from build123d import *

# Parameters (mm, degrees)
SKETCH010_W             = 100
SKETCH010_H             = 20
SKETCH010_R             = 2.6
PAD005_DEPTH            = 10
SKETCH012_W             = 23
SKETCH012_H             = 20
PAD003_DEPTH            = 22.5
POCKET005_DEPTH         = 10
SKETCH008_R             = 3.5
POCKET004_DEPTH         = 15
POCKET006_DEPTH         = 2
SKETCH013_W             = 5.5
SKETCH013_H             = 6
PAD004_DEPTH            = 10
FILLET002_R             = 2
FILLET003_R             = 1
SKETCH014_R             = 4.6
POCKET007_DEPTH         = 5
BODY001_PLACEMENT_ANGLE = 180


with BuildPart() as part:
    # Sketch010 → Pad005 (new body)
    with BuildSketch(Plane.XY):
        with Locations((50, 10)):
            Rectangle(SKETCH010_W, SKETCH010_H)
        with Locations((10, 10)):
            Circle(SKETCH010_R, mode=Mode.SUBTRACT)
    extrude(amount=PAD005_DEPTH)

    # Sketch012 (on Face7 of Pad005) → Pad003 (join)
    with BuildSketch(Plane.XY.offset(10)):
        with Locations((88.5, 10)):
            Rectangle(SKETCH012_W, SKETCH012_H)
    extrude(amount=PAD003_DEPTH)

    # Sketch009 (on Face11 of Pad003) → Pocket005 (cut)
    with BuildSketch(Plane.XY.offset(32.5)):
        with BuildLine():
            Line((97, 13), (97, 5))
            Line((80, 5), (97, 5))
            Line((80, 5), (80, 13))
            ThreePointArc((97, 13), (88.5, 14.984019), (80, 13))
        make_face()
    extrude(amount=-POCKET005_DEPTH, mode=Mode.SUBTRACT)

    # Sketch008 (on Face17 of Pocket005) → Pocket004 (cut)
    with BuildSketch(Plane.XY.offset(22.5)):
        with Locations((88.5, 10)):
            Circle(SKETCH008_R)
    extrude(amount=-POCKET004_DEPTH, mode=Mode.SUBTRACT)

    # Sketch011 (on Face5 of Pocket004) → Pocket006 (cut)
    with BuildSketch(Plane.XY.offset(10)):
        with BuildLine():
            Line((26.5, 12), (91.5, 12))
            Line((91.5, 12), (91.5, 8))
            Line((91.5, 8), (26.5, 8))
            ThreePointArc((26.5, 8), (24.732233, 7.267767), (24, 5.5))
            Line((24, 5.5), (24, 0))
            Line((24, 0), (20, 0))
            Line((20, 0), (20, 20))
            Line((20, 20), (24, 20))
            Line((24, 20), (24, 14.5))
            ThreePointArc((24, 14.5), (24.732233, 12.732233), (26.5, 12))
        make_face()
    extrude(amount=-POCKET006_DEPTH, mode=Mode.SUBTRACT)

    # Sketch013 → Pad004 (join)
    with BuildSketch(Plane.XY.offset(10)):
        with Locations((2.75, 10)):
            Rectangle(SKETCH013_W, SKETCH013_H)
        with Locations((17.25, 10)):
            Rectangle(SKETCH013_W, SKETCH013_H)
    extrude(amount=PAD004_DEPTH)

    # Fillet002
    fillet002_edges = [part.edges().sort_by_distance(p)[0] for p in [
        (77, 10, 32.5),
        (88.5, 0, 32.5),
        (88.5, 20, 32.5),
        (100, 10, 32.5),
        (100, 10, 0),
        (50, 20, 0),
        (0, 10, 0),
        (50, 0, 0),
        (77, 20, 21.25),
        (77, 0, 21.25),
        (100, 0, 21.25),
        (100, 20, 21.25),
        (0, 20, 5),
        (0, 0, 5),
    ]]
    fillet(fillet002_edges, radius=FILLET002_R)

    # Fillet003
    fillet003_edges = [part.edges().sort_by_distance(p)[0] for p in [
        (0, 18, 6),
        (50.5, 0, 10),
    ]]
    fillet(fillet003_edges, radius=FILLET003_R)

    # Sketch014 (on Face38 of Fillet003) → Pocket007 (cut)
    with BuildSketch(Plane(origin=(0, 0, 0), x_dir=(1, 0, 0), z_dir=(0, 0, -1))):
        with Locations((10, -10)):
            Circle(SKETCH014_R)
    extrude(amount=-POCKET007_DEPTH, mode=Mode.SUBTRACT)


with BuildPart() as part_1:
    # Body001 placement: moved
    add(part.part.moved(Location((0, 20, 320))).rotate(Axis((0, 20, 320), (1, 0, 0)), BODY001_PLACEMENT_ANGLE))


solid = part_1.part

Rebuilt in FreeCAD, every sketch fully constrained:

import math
import FreeCAD as App
import Part
import Sketcher
from FreeCAD import Vector


def edges_at(feature, points):
    """Names of the edges that pass closest to the given points."""
    edges = feature.Shape.Edges
    near = lambda p: min(range(len(edges)), key=lambda i: edges[i].distToShape(Part.Vertex(*p))[0])
    return sorted({f"Edge{near(p) + 1}" for p in points})

doc = App.newDocument("Part")
params = doc.addObject("Spreadsheet::Sheet", "Params")
for row, (alias, value) in enumerate([
    ("sketch1_diameter", "5.2 mm"),
    ("sketch1_width", "100 mm"),
    ("sketch1_height", "20 mm"),
    ("pad1_length", "10 mm"),
    ("sketch2_width", "23 mm"),
    ("sketch2_height", "20 mm"),
    ("pad2_length", "22.5 mm"),
    ("sketch3_radius", "19.2 mm"),
    ("sketch3_width", "17 mm"),
    ("sketch3_height", "8 mm"),
    ("pocket1_length", "10 mm"),
    ("sketch4_diameter", "7 mm"),
    ("pocket2_length", "15 mm"),
    ("sketch5_radius", "2.5 mm"),
    ("sketch5_width", "65 mm"),
    ("sketch5_width2", "4 mm"),
    ("sketch5_height", "20 mm"),
    ("pocket3_length", "2 mm"),
    ("sketch6_height", "6 mm"),
    ("sketch6_width", "5.5 mm"),
    ("pad3_length", "10 mm"),
    ("fillet_radius", "2 mm"),
    ("fillet2_radius", "1 mm"),
    ("sketch7_diameter", "9.2 mm"),
    ("pocket4_length", "5 mm"),
], start=1):
    params.set(f"A{row}", alias)
    params.set(f"B{row}", "=" + value)
    params.setAlias(f"B{row}", alias)

body = doc.addObject("PartDesign::Body", "Body")

# Sketch on XY plane
sketch1 = body.newObject("Sketcher::SketchObject", "Sketch")
sketch1.AttachmentSupport = (doc.getObject("XY_Plane"), [""])
sketch1.MapMode = "FlatFace"
sketch1.addGeometry([
    Part.LineSegment(Vector(0, 20, 0), Vector(0, 0, 0)),  # 0
    Part.LineSegment(Vector(0, 0, 0), Vector(100, 0, 0)),  # 1
    Part.LineSegment(Vector(100, 0, 0), Vector(100, 20, 0)),  # 2
    Part.LineSegment(Vector(100, 20, 0), Vector(0, 20, 0)),  # 3
    Part.Circle(Vector(10, 10, 0), Vector(0, 0, 1), 2.6),  # 4
], False)
sketch1.addConstraint([
    Sketcher.Constraint("Coincident", 0, 2, 1, 1),
    Sketcher.Constraint("Coincident", 1, 2, 2, 1),
    Sketcher.Constraint("Coincident", 2, 2, 3, 1),
    Sketcher.Constraint("Coincident", 3, 2, 0, 1),
    Sketcher.Constraint("Vertical", 0),
    Sketcher.Constraint("Horizontal", 1),
    Sketcher.Constraint("Vertical", 2),
    Sketcher.Constraint("Horizontal", 3),
    Sketcher.Constraint("Coincident", 0, 2, -1, 1),
    Sketcher.Constraint("Diameter", 4, 5.2),
    Sketcher.Constraint("DistanceX", 1, 1, 1, 2, 100.0),
    Sketcher.Constraint("DistanceY", 0, 2, 0, 1, 20.0),
    Sketcher.Constraint("DistanceX", -1, 1, 4, 3, 10.0),
    Sketcher.Constraint("DistanceY", -1, 1, 4, 3, 10.0),
])
sketch1.setExpression("Constraints[9]", "Params.sketch1_diameter")
sketch1.setExpression("Constraints[10]", "Params.sketch1_width")
sketch1.setExpression("Constraints[11]", "Params.sketch1_height")
pad1 = body.newObject("PartDesign::Pad", "Pad")
pad1.Profile = sketch1
pad1.setExpression("Length", "Params.pad1_length")

# Sketch on XY plane
sketch2 = body.newObject("Sketcher::SketchObject", "Sketch001")
sketch2.AttachmentSupport = (doc.getObject("XY_Plane"), [""])
sketch2.MapMode = "FlatFace"
sketch2.AttachmentOffset = App.Placement(Vector(0, 0, 10), App.Rotation())
sketch2.addGeometry([
    Part.LineSegment(Vector(77, 20, 0), Vector(77, 0, 0)),
    Part.LineSegment(Vector(77, 0, 0), Vector(100, 0, 0)),
    Part.LineSegment(Vector(100, 0, 0), Vector(100, 20, 0)),
    Part.LineSegment(Vector(100, 20, 0), Vector(77, 20, 0)),
], False)
sketch2.addConstraint([
    Sketcher.Constraint("Coincident", 0, 2, 1, 1),
    Sketcher.Constraint("Coincident", 1, 2, 2, 1),
    Sketcher.Constraint("Coincident", 2, 2, 3, 1),
    Sketcher.Constraint("Coincident", 3, 2, 0, 1),
    Sketcher.Constraint("Vertical", 0),
    Sketcher.Constraint("Horizontal", 1),
    Sketcher.Constraint("Vertical", 2),
    Sketcher.Constraint("Horizontal", 3),
    Sketcher.Constraint("PointOnObject", 0, 2, -1),
    Sketcher.Constraint("DistanceX", 1, 1, 1, 2, 23.0),
    Sketcher.Constraint("DistanceY", 0, 2, 0, 1, 20.0),
    Sketcher.Constraint("DistanceX", -1, 1, 0, 2, 77.0),
])
sketch2.setExpression("Constraints[9]", "Params.sketch2_width")
sketch2.setExpression("Constraints[10]", "Params.sketch2_height")
pad2 = body.newObject("PartDesign::Pad", "Pad001")
pad2.Profile = sketch2
pad2.setExpression("Length", "Params.pad2_length")

# Sketch on XY plane
sketch3 = body.newObject("Sketcher::SketchObject", "Sketch002")
sketch3.AttachmentSupport = (doc.getObject("XY_Plane"), [""])
sketch3.MapMode = "FlatFace"
sketch3.AttachmentOffset = App.Placement(Vector(0, 0, 32.5), App.Rotation())
sketch3.addGeometry([
    Part.LineSegment(Vector(97, 5, 0), Vector(97, 13, 0)),
    Part.ArcOfCircle(Part.Circle(Vector(88, -4, 0), Vector(0, 0, 1), 19), math.radians(64), math.radians(116)),
    Part.LineSegment(Vector(80, 13, 0), Vector(80, 5, 0)),
    Part.LineSegment(Vector(80, 5, 0), Vector(97, 5, 0)),
], False)
sketch3.addConstraint([
    Sketcher.Constraint("Coincident", 0, 2, 1, 1),
    Sketcher.Constraint("Coincident", 1, 2, 2, 1),
    Sketcher.Constraint("Coincident", 2, 2, 3, 1),
    Sketcher.Constraint("Coincident", 3, 2, 0, 1),
    Sketcher.Constraint("Vertical", 0),
    Sketcher.Constraint("Vertical", 2),
    Sketcher.Constraint("Horizontal", 3),
    Sketcher.Constraint("Horizontal", 0, 2, 1, 2),
    Sketcher.Constraint("Radius", 1, 19.2),
    Sketcher.Constraint("DistanceX", 3, 1, 3, 2, 17.0),
    Sketcher.Constraint("DistanceY", 0, 1, 0, 2, 8.0),
    Sketcher.Constraint("DistanceX", -1, 1, 0, 2, 97.0),
    Sketcher.Constraint("DistanceY", -1, 1, 0, 2, 13.0),
])
sketch3.setExpression("Constraints[8]", "Params.sketch3_radius")
sketch3.setExpression("Constraints[9]", "Params.sketch3_width")
sketch3.setExpression("Constraints[10]", "Params.sketch3_height")
pocket1 = body.newObject("PartDesign::Pocket", "Pocket")
pocket1.Profile = sketch3
pocket1.setExpression("Length", "Params.pocket1_length")

# Sketch on XY plane
sketch4 = body.newObject("Sketcher::SketchObject", "Sketch003")
sketch4.AttachmentSupport = (doc.getObject("XY_Plane"), [""])
sketch4.MapMode = "FlatFace"
sketch4.AttachmentOffset = App.Placement(Vector(0, 0, 22.5), App.Rotation())
sketch4.addGeometry(Part.Circle(Vector(88.5, 10, 0), Vector(0, 0, 1), 3.5), False)
sketch4.addConstraint([
    Sketcher.Constraint("Diameter", 0, 7.0),
    Sketcher.Constraint("DistanceY", -1, 1, 0, 3, 10.0),
    Sketcher.Constraint("DistanceX", -1, 1, 0, 3, 88.5),
])
sketch4.setExpression("Constraints[0]", "Params.sketch4_diameter")
pocket2 = body.newObject("PartDesign::Pocket", "Pocket001")
pocket2.Profile = sketch4
pocket2.setExpression("Length", "Params.pocket2_length")

# Sketch on XY plane
sketch5 = body.newObject("Sketcher::SketchObject", "Sketch004")
sketch5.AttachmentSupport = (doc.getObject("XY_Plane"), [""])
sketch5.MapMode = "FlatFace"
sketch5.AttachmentOffset = App.Placement(Vector(0, 0, 10), App.Rotation())
sketch5.addGeometry([
    Part.LineSegment(Vector(91.5, 12, 0), Vector(26.5, 12, 0)),  # 0
    Part.ArcOfCircle(Part.Circle(Vector(26.5, 14.5, 0), Vector(0, 0, 1), 2.5), math.radians(180), math.radians(270)),  # 1
    Part.LineSegment(Vector(24, 14.5, 0), Vector(24, 20, 0)),  # 2
    Part.LineSegment(Vector(24, 20, 0), Vector(20, 20, 0)),  # 3
    Part.LineSegment(Vector(20, 20, 0), Vector(20, 0, 0)),  # 4
    Part.LineSegment(Vector(20, 0, 0), Vector(24, 0, 0)),  # 5
    Part.LineSegment(Vector(24, 0, 0), Vector(24, 5.5, 0)),  # 6
    Part.ArcOfCircle(Part.Circle(Vector(26.5, 5.5, 0), Vector(0, 0, 1), 2.5), math.radians(90), math.radians(180)),  # 7
    Part.LineSegment(Vector(26.5, 8, 0), Vector(91.5, 8, 0)),  # 8
    Part.LineSegment(Vector(91.5, 8, 0), Vector(91.5, 12, 0)),  # 9
], False)
sketch5.addConstraint([
    Sketcher.Constraint("Tangent", 0, 2, 1, 2),
    Sketcher.Constraint("Tangent", 1, 1, 2, 1),
    Sketcher.Constraint("Coincident", 2, 2, 3, 1),
    Sketcher.Constraint("Coincident", 3, 2, 4, 1),
    Sketcher.Constraint("Coincident", 4, 2, 5, 1),
    Sketcher.Constraint("Coincident", 5, 2, 6, 1),
    Sketcher.Constraint("Tangent", 6, 2, 7, 2),
    Sketcher.Constraint("Tangent", 7, 1, 8, 1),
    Sketcher.Constraint("Coincident", 8, 2, 9, 1),
    Sketcher.Constraint("Coincident", 9, 2, 0, 1),
    Sketcher.Constraint("Horizontal", 0),
    Sketcher.Constraint("Vertical", 2),
    Sketcher.Constraint("Horizontal", 3),
    Sketcher.Constraint("Vertical", 4),
    Sketcher.Constraint("Horizontal", 5),
    Sketcher.Constraint("Vertical", 6),
    Sketcher.Constraint("Horizontal", 8),
    Sketcher.Constraint("Vertical", 9),
    Sketcher.Constraint("Equal", 1, 7),
    Sketcher.Constraint("PointOnObject", 4, 2, -1),
    Sketcher.Constraint("Vertical", 1, 3, 7, 3),
    Sketcher.Constraint("Equal", 2, 6),
    Sketcher.Constraint("Equal", 5, 9),
    Sketcher.Constraint("Radius", 1, 2.5),
    Sketcher.Constraint("DistanceX", 0, 2, 0, 1, 65.0),
    Sketcher.Constraint("DistanceX", 3, 2, 3, 1, 4.0),
    Sketcher.Constraint("DistanceY", 4, 2, 4, 1, 20.0),
    Sketcher.Constraint("DistanceX", -1, 1, 1, 1, 24.0),
])
sketch5.setExpression("Constraints[23]", "Params.sketch5_radius")
sketch5.setExpression("Constraints[24]", "Params.sketch5_width")
sketch5.setExpression("Constraints[25]", "Params.sketch5_width2")
sketch5.setExpression("Constraints[26]", "Params.sketch5_height")
pocket3 = body.newObject("PartDesign::Pocket", "Pocket002")
pocket3.Profile = sketch5
pocket3.setExpression("Length", "Params.pocket3_length")

# Sketch on XY plane
sketch6 = body.newObject("Sketcher::SketchObject", "Sketch005")
sketch6.AttachmentSupport = (doc.getObject("XY_Plane"), [""])
sketch6.MapMode = "FlatFace"
sketch6.AttachmentOffset = App.Placement(Vector(0, 0, 10), App.Rotation())
sketch6.addGeometry([
    Part.LineSegment(Vector(0, 13, 0), Vector(0, 7, 0)),  # 0
    Part.LineSegment(Vector(0, 7, 0), Vector(6, 7, 0)),  # 1
    Part.LineSegment(Vector(6, 7, 0), Vector(6, 13, 0)),  # 2
    Part.LineSegment(Vector(6, 13, 0), Vector(0, 13, 0)),  # 3
    Part.LineSegment(Vector(14, 13, 0), Vector(14, 7, 0)),  # 4
    Part.LineSegment(Vector(14, 7, 0), Vector(20, 7, 0)),  # 5
    Part.LineSegment(Vector(20, 7, 0), Vector(20, 13, 0)),  # 6
    Part.LineSegment(Vector(20, 13, 0), Vector(14, 13, 0)),  # 7
], False)
sketch6.addConstraint([
    Sketcher.Constraint("Coincident", 0, 2, 1, 1),
    Sketcher.Constraint("Coincident", 1, 2, 2, 1),
    Sketcher.Constraint("Coincident", 2, 2, 3, 1),
    Sketcher.Constraint("Coincident", 3, 2, 0, 1),
    Sketcher.Constraint("Coincident", 4, 2, 5, 1),
    Sketcher.Constraint("Coincident", 5, 2, 6, 1),
    Sketcher.Constraint("Coincident", 6, 2, 7, 1),
    Sketcher.Constraint("Coincident", 7, 2, 4, 1),
    Sketcher.Constraint("Vertical", 0),
    Sketcher.Constraint("Horizontal", 1),
    Sketcher.Constraint("Vertical", 2),
    Sketcher.Constraint("Horizontal", 3),
    Sketcher.Constraint("Vertical", 4),
    Sketcher.Constraint("Horizontal", 5),
    Sketcher.Constraint("Vertical", 6),
    Sketcher.Constraint("Horizontal", 7),
    Sketcher.Constraint("PointOnObject", 0, 2, -2),
    Sketcher.Constraint("Horizontal", 1, 2, 4, 2),
    Sketcher.Constraint("Horizontal", 3, 2, 6, 2),
    Sketcher.Constraint("Equal", 3, 5),
    Sketcher.Constraint("DistanceY", 0, 2, 0, 1, 6.0),
    Sketcher.Constraint("DistanceX", 1, 1, 1, 2, 5.5),
    Sketcher.Constraint("DistanceY", -1, 1, 0, 2, 7.0),
    Sketcher.Constraint("DistanceX", -1, 1, 5, 2, 20.0),
])
sketch6.setExpression("Constraints[20]", "Params.sketch6_height")
sketch6.setExpression("Constraints[21]", "Params.sketch6_width")
pad3 = body.newObject("PartDesign::Pad", "Pad002")
pad3.Profile = sketch6
pad3.setExpression("Length", "Params.pad3_length")
doc.recompute()

fillet = body.newObject("PartDesign::Fillet", "Fillet")
fillet.Base = (pad3, edges_at(pad3, [
    (77, 10, 32.5),
    (88.5, 0, 32.5),
    (88.5, 20, 32.5),
    (100, 10, 32.5),
    (100, 10, 0),
    (50, 20, 0),
    (0, 10, 0),
    (50, 0, 0),
    (77, 20, 21.25),
    (77, 0, 21.25),
    (100, 0, 16.25),
    (100, 20, 16.25),
    (0, 20, 5),
    (0, 0, 5),
]))
fillet.setExpression("Radius", "Params.fillet_radius")
doc.recompute()

fillet2 = body.newObject("PartDesign::Fillet", "Fillet001")
fillet2.Base = (fillet, edges_at(fillet, [(0, 18, 6), (51.5, 0, 10)]))
fillet2.setExpression("Radius", "Params.fillet2_radius")

# Sketch on XY plane
sketch7 = body.newObject("Sketcher::SketchObject", "Sketch006")
sketch7.AttachmentSupport = (doc.getObject("XY_Plane"), [""])
sketch7.MapMode = "FlatFace"
sketch7.addGeometry(Part.Circle(Vector(10, 10, 0), Vector(0, 0, 1), 4.6), False)
sketch7.addConstraint([
    Sketcher.Constraint("Diameter", 0, 9.2),
    Sketcher.Constraint("DistanceX", -1, 1, 0, 3, 10.0),
    Sketcher.Constraint("DistanceY", -1, 1, 0, 3, 10.0),
])
sketch7.setExpression("Constraints[0]", "Params.sketch7_diameter")
pocket4 = body.newObject("PartDesign::Pocket", "Pocket003")
pocket4.Profile = sketch7
pocket4.setExpression("Length", "Params.pocket4_length")
pocket4.Reversed = True
body2 = doc.addObject("PartDesign::Body", "Body001")
doc.recompute()

body.Placement = App.Placement(Vector(0, 20, 320), App.Rotation(Vector(1, 0, 0), 180))
boolean = body2.newObject("PartDesign::Boolean", "Boolean")
boolean.Type = "Fuse"
boolean.addObjects([body])

doc.recompute()
